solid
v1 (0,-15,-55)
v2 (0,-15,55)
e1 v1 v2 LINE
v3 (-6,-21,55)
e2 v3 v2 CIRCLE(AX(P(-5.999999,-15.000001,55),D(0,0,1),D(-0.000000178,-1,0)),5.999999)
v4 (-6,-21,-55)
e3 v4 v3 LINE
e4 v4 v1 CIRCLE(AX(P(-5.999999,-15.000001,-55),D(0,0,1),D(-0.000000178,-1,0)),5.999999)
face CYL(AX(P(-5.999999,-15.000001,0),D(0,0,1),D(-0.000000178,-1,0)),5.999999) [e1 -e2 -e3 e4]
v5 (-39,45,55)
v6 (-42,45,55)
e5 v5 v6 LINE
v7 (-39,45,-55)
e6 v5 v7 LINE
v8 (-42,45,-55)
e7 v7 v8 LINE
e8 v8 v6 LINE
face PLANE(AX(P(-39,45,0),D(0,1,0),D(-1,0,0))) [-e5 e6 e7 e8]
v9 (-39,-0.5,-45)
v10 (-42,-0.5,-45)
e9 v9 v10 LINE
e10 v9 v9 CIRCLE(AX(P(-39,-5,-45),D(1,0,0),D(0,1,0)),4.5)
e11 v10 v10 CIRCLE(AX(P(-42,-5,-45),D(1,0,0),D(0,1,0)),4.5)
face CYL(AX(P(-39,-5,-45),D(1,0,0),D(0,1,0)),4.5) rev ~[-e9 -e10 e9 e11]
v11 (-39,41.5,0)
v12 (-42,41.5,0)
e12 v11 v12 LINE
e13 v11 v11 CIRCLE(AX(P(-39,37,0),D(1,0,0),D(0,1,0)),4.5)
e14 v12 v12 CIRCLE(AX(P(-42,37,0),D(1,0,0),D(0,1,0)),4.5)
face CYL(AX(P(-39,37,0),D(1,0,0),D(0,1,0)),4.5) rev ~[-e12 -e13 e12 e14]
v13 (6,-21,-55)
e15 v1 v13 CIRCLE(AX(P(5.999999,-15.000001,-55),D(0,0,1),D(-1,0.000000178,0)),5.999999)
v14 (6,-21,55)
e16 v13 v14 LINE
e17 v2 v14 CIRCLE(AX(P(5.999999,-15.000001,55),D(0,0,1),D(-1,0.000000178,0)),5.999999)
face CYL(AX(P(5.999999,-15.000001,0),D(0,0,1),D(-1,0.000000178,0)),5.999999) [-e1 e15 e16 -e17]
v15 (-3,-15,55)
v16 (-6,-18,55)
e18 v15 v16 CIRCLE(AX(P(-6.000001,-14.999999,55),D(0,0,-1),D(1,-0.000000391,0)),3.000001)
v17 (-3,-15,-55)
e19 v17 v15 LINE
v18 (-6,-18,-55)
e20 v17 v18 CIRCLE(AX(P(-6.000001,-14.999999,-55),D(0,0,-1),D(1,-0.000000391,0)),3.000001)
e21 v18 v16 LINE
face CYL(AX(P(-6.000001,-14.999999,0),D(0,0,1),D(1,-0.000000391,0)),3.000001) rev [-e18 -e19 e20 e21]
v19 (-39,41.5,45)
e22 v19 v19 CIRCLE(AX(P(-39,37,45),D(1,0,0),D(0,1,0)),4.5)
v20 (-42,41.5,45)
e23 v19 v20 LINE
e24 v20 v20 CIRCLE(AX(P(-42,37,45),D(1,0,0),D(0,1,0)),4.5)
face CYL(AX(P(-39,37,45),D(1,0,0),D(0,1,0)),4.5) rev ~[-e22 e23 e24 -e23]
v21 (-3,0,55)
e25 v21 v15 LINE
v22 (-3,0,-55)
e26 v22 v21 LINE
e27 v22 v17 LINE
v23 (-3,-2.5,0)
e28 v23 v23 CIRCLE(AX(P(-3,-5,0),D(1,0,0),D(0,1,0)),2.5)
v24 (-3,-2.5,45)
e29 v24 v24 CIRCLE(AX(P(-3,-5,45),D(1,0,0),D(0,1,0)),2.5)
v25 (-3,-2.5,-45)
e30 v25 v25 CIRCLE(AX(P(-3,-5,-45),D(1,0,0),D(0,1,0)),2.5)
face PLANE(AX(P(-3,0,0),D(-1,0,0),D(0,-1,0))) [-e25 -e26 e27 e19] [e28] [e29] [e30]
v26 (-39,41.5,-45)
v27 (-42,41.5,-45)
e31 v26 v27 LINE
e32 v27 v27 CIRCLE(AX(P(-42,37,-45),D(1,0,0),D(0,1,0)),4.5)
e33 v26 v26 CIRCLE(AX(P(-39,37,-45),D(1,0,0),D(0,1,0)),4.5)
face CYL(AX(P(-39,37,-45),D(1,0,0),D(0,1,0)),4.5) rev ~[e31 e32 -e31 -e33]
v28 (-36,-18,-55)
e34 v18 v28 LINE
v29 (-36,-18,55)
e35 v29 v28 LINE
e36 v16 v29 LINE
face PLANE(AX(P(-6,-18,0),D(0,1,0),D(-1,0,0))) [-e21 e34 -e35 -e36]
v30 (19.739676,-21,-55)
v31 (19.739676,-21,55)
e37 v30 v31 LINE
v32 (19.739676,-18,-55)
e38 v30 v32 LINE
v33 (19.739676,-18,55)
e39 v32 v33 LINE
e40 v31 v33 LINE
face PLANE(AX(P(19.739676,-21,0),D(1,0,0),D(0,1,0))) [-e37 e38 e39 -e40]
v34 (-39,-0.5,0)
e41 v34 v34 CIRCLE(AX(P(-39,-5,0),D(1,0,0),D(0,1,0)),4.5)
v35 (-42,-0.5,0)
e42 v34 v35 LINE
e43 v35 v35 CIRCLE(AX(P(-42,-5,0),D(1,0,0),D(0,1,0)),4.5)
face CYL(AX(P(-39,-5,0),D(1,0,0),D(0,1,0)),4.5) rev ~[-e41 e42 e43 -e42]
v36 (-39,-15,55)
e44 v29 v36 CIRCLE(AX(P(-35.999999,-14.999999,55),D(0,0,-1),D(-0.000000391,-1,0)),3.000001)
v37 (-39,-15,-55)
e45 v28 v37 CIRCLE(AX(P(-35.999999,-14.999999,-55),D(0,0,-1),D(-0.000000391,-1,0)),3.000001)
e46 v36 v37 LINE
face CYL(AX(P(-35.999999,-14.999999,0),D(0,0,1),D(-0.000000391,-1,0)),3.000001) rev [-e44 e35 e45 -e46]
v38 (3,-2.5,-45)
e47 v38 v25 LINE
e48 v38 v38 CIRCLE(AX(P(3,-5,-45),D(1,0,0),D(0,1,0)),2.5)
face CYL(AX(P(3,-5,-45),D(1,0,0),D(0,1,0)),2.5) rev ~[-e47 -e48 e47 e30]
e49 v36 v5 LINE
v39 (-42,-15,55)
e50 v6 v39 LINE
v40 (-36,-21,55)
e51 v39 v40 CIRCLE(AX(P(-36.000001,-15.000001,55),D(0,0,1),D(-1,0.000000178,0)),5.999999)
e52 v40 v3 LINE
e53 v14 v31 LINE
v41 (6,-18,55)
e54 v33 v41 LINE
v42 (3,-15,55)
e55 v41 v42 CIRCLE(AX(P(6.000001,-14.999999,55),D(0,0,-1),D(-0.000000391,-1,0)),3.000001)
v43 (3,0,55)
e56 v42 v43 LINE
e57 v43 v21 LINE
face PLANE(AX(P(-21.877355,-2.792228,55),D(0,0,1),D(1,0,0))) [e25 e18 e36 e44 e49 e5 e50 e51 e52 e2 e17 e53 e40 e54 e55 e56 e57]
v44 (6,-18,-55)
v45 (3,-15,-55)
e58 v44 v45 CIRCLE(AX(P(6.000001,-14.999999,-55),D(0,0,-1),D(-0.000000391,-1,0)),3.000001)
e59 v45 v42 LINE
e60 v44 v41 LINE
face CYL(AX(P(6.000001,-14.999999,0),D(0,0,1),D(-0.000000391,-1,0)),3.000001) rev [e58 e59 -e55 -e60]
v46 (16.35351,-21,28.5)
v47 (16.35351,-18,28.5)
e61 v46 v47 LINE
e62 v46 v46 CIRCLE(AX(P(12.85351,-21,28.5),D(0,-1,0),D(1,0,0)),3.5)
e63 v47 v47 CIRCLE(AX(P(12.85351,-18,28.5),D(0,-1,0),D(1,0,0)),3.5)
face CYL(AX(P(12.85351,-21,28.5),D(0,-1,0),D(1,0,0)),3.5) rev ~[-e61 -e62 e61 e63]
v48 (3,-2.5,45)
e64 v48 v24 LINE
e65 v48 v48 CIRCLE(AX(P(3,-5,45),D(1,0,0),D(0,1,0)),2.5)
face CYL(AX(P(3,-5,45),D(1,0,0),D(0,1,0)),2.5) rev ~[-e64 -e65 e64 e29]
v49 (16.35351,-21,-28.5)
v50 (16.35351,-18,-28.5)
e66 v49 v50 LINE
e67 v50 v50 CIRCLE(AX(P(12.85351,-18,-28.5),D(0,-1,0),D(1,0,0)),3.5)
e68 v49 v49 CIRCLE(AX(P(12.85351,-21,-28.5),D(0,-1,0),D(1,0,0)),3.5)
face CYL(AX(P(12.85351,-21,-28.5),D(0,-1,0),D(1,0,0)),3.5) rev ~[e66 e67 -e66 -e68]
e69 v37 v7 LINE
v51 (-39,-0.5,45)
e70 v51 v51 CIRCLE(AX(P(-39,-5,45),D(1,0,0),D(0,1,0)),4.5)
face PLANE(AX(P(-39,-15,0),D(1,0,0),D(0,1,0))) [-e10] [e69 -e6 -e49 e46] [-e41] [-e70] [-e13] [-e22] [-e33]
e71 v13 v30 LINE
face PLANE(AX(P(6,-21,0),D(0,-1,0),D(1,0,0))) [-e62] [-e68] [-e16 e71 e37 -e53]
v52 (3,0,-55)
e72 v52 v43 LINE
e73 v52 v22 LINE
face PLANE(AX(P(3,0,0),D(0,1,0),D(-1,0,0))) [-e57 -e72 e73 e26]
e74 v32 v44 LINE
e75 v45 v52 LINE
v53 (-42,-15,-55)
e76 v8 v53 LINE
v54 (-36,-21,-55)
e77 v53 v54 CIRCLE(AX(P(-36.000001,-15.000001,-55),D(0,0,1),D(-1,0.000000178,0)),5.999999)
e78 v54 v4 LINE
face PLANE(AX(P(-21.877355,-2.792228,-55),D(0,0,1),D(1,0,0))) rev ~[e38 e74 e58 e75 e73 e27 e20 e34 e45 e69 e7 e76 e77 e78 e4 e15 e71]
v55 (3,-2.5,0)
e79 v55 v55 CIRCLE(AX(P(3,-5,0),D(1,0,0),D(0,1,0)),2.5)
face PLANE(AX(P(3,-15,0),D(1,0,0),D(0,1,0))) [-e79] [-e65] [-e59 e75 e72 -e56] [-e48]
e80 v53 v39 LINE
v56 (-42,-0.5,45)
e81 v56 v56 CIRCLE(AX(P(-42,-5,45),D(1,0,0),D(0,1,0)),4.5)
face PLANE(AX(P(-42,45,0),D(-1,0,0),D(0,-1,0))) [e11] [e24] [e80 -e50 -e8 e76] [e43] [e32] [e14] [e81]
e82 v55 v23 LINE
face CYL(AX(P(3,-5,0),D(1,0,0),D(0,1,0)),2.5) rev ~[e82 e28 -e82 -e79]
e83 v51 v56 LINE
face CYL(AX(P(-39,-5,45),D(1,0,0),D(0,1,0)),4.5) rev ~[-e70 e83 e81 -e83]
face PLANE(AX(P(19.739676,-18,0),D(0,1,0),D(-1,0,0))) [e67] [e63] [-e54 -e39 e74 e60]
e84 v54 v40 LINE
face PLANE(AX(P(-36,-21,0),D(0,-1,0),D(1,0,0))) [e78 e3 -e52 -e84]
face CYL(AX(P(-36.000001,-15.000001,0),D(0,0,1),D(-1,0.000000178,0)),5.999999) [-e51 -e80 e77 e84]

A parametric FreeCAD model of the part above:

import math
import FreeCAD as App
import Part
import Sketcher

V = App.Vector

doc = App.newDocument("Part")
body = doc.addObject("PartDesign::Body", "Body")

sketch1 = body.newObject("Sketcher::SketchObject", "Sketch")
sketch1.AttachmentSupport = (doc.getObject("XY_Plane"), [""])
sketch1.MapMode = "FlatFace"
sketch1.addGeometry(Part.LineSegment(V(-39, 45, 0), V(-42, 45, 0)), False)
sketch1.addGeometry(Part.LineSegment(V(-42, 45, 0), V(-42, -15, 0)), False)
sketch1.addGeometry(Part.ArcOfCircle(Part.Circle(V(-36.000001, -15.000001, 0), V(0, 0, 1), 5.999999), math.radians(179.99999), math.radians(270.00001)), False)
sketch1.addGeometry(Part.LineSegment(V(-36, -21, 0), V(-6, -21, 0)), False)
sketch1.addGeometry(Part.ArcOfCircle(Part.Circle(V(-5.999999, -15.000001, 0), V(0, 0, 1), 5.999999), math.radians(-90.00001), math.radians(0.00001)), False)
sketch1.addGeometry(Part.ArcOfCircle(Part.Circle(V(5.999999, -15.000001, 0), V(0, 0, 1), 5.999999), math.radians(179.99999), math.radians(270.00001)), False)
sketch1.addGeometry(Part.LineSegment(V(6, -21, 0), V(19.739676, -21, 0)), False)
sketch1.addGeometry(Part.LineSegment(V(19.739676, -21, 0), V(19.739676, -18, 0)), False)
sketch1.addGeometry(Part.LineSegment(V(19.739676, -18, 0), V(6, -18, 0)), False)
sketch1.addGeometry(Part.ArcOfCircle(Part.Circle(V(6.000001, -14.999999, 0), V(0, 0, 1), 3.000001), math.radians(-179.999978), math.radians(-90.000022)), False)
sketch1.addGeometry(Part.LineSegment(V(3, -15, 0), V(3, 0, 0)), False)
sketch1.addGeometry(Part.LineSegment(V(3, 0, 0), V(-3, 0, 0)), False)
sketch1.addGeometry(Part.LineSegment(V(-3, 0, 0), V(-3, -15, 0)), False)
sketch1.addGeometry(Part.ArcOfCircle(Part.Circle(V(-6.000001, -14.999999, 0), V(0, 0, 1), 3.000001), math.radians(-89.999978), math.radians(-0.000022)), False)
sketch1.addGeometry(Part.LineSegment(V(-6, -18, 0), V(-36, -18, 0)), False)
sketch1.addGeometry(Part.ArcOfCircle(Part.Circle(V(-35.999999, -14.999999, 0), V(0, 0, 1), 3.000001), math.radians(-179.999978), math.radians(-90.000022)), False)
sketch1.addGeometry(Part.LineSegment(V(-39, -15, 0), V(-39, 45, 0)), False)
sketch1.addConstraint(Sketcher.Constraint("Coincident", 0, 2, 1, 1))
sketch1.addConstraint(Sketcher.Constraint("Tangent", 1, 2, 2, 1))
sketch1.addConstraint(Sketcher.Constraint("Tangent", 2, 2, 3, 1))
sketch1.addConstraint(Sketcher.Constraint("Tangent", 3, 2, 4, 1))
sketch1.addConstraint(Sketcher.Constraint("Tangent", 4, 2, 5, 1))
sketch1.addConstraint(Sketcher.Constraint("Tangent", 5, 2, 6, 1))
sketch1.addConstraint(Sketcher.Constraint("Coincident", 6, 2, 7, 1))
sketch1.addConstraint(Sketcher.Constraint("Coincident", 7, 2, 8, 1))
sketch1.addConstraint(Sketcher.Constraint("Tangent", 8, 2, 9, 2))
sketch1.addConstraint(Sketcher.Constraint("Tangent", 9, 1, 10, 1))
sketch1.addConstraint(Sketcher.Constraint("Coincident", 10, 2, 11, 1))
sketch1.addConstraint(Sketcher.Constraint("Coincident", 11, 2, 12, 1))
sketch1.addConstraint(Sketcher.Constraint("Tangent", 12, 2, 13, 2))
sketch1.addConstraint(Sketcher.Constraint("Tangent", 13, 1, 14, 1))
sketch1.addConstraint(Sketcher.Constraint("Tangent", 14, 2, 15, 2))
sketch1.addConstraint(Sketcher.Constraint("Tangent", 15, 1, 16, 1))
sketch1.addConstraint(Sketcher.Constraint("Coincident", 16, 2, 0, 1))
sketch1.addConstraint(Sketcher.Constraint("Horizontal", 0))
sketch1.addConstraint(Sketcher.Constraint("Vertical", 1))
sketch1.addConstraint(Sketcher.Constraint("Horizontal", 3))
sketch1.addConstraint(Sketcher.Constraint("Horizontal", 6))
sketch1.addConstraint(Sketcher.Constraint("Vertical", 7))
sketch1.addConstraint(Sketcher.Constraint("Horizontal", 8))
sketch1.addConstraint(Sketcher.Constraint("Vertical", 10))
sketch1.addConstraint(Sketcher.Constraint("Horizontal", 11))
sketch1.addConstraint(Sketcher.Constraint("Vertical", 12))
sketch1.addConstraint(Sketcher.Constraint("Horizontal", 14))
sketch1.addConstraint(Sketcher.Constraint("Vertical", 16))
sketch1.addConstraint(Sketcher.Constraint("Coincident", 9, 3, 5, 3))
sketch1.addConstraint(Sketcher.Constraint("Coincident", 13, 3, 4, 3))
sketch1.addConstraint(Sketcher.Constraint("Coincident", 15, 3, 2, 3))
sketch1.addConstraint(Sketcher.Constraint("Equal", 2, 4))
sketch1.addConstraint(Sketcher.Constraint("Equal", 4, 5))
sketch1.addConstraint(Sketcher.Constraint("Equal", 9, 13))
sketch1.addConstraint(Sketcher.Constraint("Symmetric", 10, 2, 11, 2, -1, 1))
sketch1.addConstraint(Sketcher.Constraint("Horizontal", 4, 3, 5, 3))
sketch1.addConstraint(Sketcher.Constraint("Radius", 2, 5.999999))
sketch1.addConstraint(Sketcher.Constraint("Radius", 9, 3.000001))
sketch1.addConstraint(Sketcher.Constraint("DistanceX", 3, 1, 3, 2, 30.0))
sketch1.addConstraint(Sketcher.Constraint("DistanceY", 1, 2, 1, 1, 60.0))
sketch1.addConstraint(Sketcher.Constraint("DistanceY", 10, 1, 10, 2, 15.0))
sketch1.addConstraint(Sketcher.Constraint("DistanceX", 6, 1, 6, 2, 13.739676))
pad1 = body.newObject("PartDesign::Pad", "Pad")
pad1.Profile = sketch1
pad1.Type = "TwoLengths"
pad1.Length = 55
pad1.Length2 = 55

sketch2 = body.newObject("Sketcher::SketchObject", "Sketch001")
sketch2.AttachmentSupport = (doc.getObject("YZ_Plane"), [""])
sketch2.MapMode = "FlatFace"
sketch2.AttachmentOffset = App.Placement(V(0, 0, 3), App.Rotation())
sketch2.addGeometry(Part.Circle(V(-5, 45, 0), V(0, 0, 1), 2.5), False)
sketch2.addGeometry(Part.Circle(V(-5, 0, 0), V(0, 0, 1), 2.5), False)
sketch2.addGeometry(Part.Circle(V(-5, -45, 0), V(0, 0, 1), 2.5), False)
sketch2.addConstraint(Sketcher.Constraint("Equal", 0, 1))
sketch2.addConstraint(Sketcher.Constraint("Equal", 1, 2))
sketch2.addConstraint(Sketcher.Constraint("Symmetric", 0, 3, 2, 3, -1))
sketch2.addConstraint(Sketcher.Constraint("PointOnObject", 1, 3, -1))
sketch2.addConstraint(Sketcher.Constraint("Vertical", 0, 3, 1, 3))
sketch2.addConstraint(Sketcher.Constraint("Diameter", 0, 5.0))
sketch2.addConstraint(Sketcher.Constraint("DistanceX", 0, 3, -1, 1, 5.0))
sketch2.addConstraint(Sketcher.Constraint("DistanceY", -1, 1, 0, 3, 45.0))
pocket1 = body.newObject("PartDesign::Pocket", "Pocket")
pocket1.Profile = sketch2
pocket1.Type = "ThroughAll"

sketch3 = body.newObject("Sketcher::SketchObject", "Sketch002")
sketch3.AttachmentSupport = (doc.getObject("YZ_Plane"), [""])
sketch3.MapMode = "FlatFace"
sketch3.AttachmentOffset = App.Placement(V(0, 0, -39), App.Rotation())
sketch3.addGeometry(Part.Circle(V(-5, 45, 0), V(0, 0, 1), 4.5), False)
sketch3.addGeometry(Part.Circle(V(-5, 0, 0), V(0, 0, 1), 4.5), False)
sketch3.addGeometry(Part.Circle(V(-5, -45, 0), V(0, 0, 1), 4.5), False)
sketch3.addConstraint(Sketcher.Constraint("Equal", 0, 1))
sketch3.addConstraint(Sketcher.Constraint("Equal", 1, 2))
sketch3.addConstraint(Sketcher.Constraint("Symmetric", 0, 3, 2, 3, -1))
sketch3.addConstraint(Sketcher.Constraint("PointOnObject", 1, 3, -1))
sketch3.addConstraint(Sketcher.Constraint("Vertical", 0, 3, 1, 3))
sketch3.addConstraint(Sketcher.Constraint("Diameter", 0, 9.0))
sketch3.addConstraint(Sketcher.Constraint("DistanceX", 0, 3, -1, 1, 5.0))
sketch3.addConstraint(Sketcher.Constraint("DistanceY", -1, 1, 0, 3, 45.0))
pocket2 = body.newObject("PartDesign::Pocket", "Pocket001")
pocket2.Profile = sketch3
pocket2.Length = 3

sketch4 = body.newObject("Sketcher::SketchObject", "Sketch003")
sketch4.AttachmentSupport = (doc.getObject("YZ_Plane"), [""])
sketch4.MapMode = "FlatFace"
sketch4.AttachmentOffset = App.Placement(V(0, 0, -39), App.Rotation())
sketch4.addGeometry(Part.Circle(V(37, 0, 0), V(0, 0, 1), 4.5), False)
sketch4.addGeometry(Part.Circle(V(37, -45, 0), V(0, 0, 1), 4.5), False)
sketch4.addGeometry(Part.Circle(V(37, 45, 0), V(0, 0, 1), 4.5), False)
sketch4.addConstraint(Sketcher.Constraint("Equal", 0, 1))
sketch4.addConstraint(Sketcher.Constraint("Equal", 1, 2))
sketch4.addConstraint(Sketcher.Constraint("Symmetric", 1, 3, 2, 3, -1))
sketch4.addConstraint(Sketcher.Constraint("PointOnObject", 0, 3, -1))
sketch4.addConstraint(Sketcher.Constraint("Vertical", 0, 3, 1, 3))
sketch4.addConstraint(Sketcher.Constraint("Diameter", 0, 9.0))
sketch4.addConstraint(Sketcher.Constraint("DistanceX", -1, 1, 0, 3, 37.0))
sketch4.addConstraint(Sketcher.Constraint("DistanceY", 1, 3, -1, 1, 45.0))
pocket3 = body.newObject("PartDesign::Pocket", "Pocket002")
pocket3.Profile = sketch4
pocket3.Length = 3

sketch5 = body.newObject("Sketcher::SketchObject", "Sketch004")
sketch5.AttachmentSupport = (doc.getObject("XZ_Plane"), [""])
sketch5.MapMode = "FlatFace"
sketch5.AttachmentOffset = App.Placement(V(0, 0, 21), App.Rotation())
sketch5.addGeometry(Part.Circle(V(12.85351, 28.5, 0), V(0, 0, 1), 3.5), False)
sketch5.addGeometry(Part.Circle(V(12.85351, -28.5, 0), V(0, 0, 1), 3.5), False)
sketch5.addConstraint(Sketcher.Constraint("Equal", 0, 1))
sketch5.addConstraint(Sketcher.Constraint("Symmetric", 0, 3, 1, 3, -1))
sketch5.addConstraint(Sketcher.Constraint("Diameter", 0, 7.0))
sketch5.addConstraint(Sketcher.Constraint("DistanceY", 1, 3, 0, 3, 57.0))
sketch5.addConstraint(Sketcher.Constraint("DistanceX", -1, 1, 0, 3, 12.85351))
pocket4 = body.newObject("PartDesign::Pocket", "Pocket003")
pocket4.Profile = sketch5
pocket4.Length = 3

doc.recompute()
